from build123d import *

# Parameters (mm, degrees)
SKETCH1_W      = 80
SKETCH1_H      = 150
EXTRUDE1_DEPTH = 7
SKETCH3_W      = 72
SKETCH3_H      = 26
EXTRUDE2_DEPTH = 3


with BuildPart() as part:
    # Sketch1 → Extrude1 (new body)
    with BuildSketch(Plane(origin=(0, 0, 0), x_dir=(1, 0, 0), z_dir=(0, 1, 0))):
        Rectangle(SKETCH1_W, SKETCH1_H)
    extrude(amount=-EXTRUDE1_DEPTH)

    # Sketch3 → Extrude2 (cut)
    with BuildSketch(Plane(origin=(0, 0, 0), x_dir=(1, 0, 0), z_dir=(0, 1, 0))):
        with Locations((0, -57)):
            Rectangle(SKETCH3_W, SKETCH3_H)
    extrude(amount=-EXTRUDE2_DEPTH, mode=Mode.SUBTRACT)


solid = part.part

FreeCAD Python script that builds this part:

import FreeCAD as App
import Part
import Sketcher

V = App.Vector
Q = App.Units.Quantity


def add_polygon(sketch, points):
    """Adds a closed chain of lines whose ends are joined by coincident constraints."""
    first, n = sketch.GeometryCount, len(points)
    for a, b in zip(points, points[1:] + points[:1]):
        sketch.addGeometry(Part.LineSegment(App.Vector(*a, 0), App.Vector(*b, 0)), False)
    for i in range(n):
        sketch.addConstraint(Sketcher.Constraint("Coincident", first + i, 2, first + (i + 1) % n, 1))

doc = App.newDocument("Part")
body = doc.addObject("PartDesign::Body", "Body")

# Sketch on XZ plane
sketch1 = body.newObject("Sketcher::SketchObject", "Sketch")
sketch1.AttachmentSupport = (doc.getObject("XZ_Plane"), [""])
sketch1.MapMode = "FlatFace"
add_polygon(sketch1, [(-40, -75), (-40, 75), (40, 75), (40, -75)])  # lines 0-3
sketch1.addConstraint([
    Sketcher.Constraint("Vertical", 0),
    Sketcher.Constraint("Horizontal", 1),
    Sketcher.Constraint("Vertical", 2),
    Sketcher.Constraint("Horizontal", 3),
    Sketcher.Constraint("Symmetric", 0, 2, 2, 2, -1, 1),
    Sketcher.Constraint("DistanceX", 1, 1, 1, 2, Q("80 mm")),
    Sketcher.Constraint("DistanceY", 0, 1, 0, 2, Q("150 mm")),
])
pad1 = body.newObject("PartDesign::Pad", "Pad")
pad1.Profile = sketch1
pad1.Length = 7

# Sketch on XZ plane
sketch2 = body.newObject("Sketcher::SketchObject", "Sketch001")
sketch2.AttachmentSupport = (doc.getObject("XZ_Plane"), [""])
sketch2.MapMode = "FlatFace"
add_polygon(sketch2, [(-36, 44), (-36, 70), (36, 70), (36, 44)])  # lines 0-3
sketch2.addConstraint([
    Sketcher.Constraint("Vertical", 0),
    Sketcher.Constraint("Horizontal", 1),
    Sketcher.Constraint("Vertical", 2),
    Sketcher.Constraint("Horizontal", 3),
    Sketcher.Constraint("DistanceX", 1, 1, 1, 2, Q("72 mm")),
    Sketcher.Constraint("DistanceY", 0, 1, 0, 2, Q("26 mm")),
    Sketcher.Constraint("DistanceX", 0, 2, -1, 1, Q("36 mm")),
    Sketcher.Constraint("DistanceY", -1, 1, 0, 2, Q("70 mm")),
])
pocket1 = body.newObject("PartDesign::Pocket", "Pocket")
pocket1.Profile = sketch2
pocket1.Length = 3
pocket1.Reversed = True

doc.recompute()
